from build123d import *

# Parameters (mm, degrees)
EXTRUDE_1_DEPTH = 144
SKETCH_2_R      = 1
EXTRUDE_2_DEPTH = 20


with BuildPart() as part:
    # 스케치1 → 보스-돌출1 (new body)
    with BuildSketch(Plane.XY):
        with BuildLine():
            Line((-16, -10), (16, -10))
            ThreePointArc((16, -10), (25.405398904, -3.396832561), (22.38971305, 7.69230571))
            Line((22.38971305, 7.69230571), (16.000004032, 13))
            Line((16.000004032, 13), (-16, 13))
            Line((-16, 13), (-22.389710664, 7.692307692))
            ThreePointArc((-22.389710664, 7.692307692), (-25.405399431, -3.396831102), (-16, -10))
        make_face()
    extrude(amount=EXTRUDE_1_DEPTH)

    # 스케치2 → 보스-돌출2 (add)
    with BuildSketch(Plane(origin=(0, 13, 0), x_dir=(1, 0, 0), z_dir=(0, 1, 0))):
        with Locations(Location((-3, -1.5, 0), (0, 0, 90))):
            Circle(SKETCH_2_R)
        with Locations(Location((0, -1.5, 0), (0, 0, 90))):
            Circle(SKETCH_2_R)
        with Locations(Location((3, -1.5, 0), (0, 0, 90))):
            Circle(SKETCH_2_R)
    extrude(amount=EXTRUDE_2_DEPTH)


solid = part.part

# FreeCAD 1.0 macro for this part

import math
import FreeCAD as App
import Part
import Sketcher

V = App.Vector
Q = App.Units.Quantity

doc = App.newDocument("Part")
body = doc.addObject("PartDesign::Body", "Body")

sketch1 = body.newObject("Sketcher::SketchObject", "Sketch")
sketch1.AttachmentSupport = (doc.getObject("XY_Plane"), [""])
sketch1.MapMode = "FlatFace"
sketch1.addGeometry(Part.LineSegment(V(-16, -10, 0), V(16, -10, 0)), False)
sketch1.addGeometry(Part.ArcOfCircle(Part.Circle(V(16, 0, 0), V(0, 0, 1), 10), math.radians(-90), math.radians(50)), False)
sketch1.addGeometry(Part.LineSegment(V(22, 8, 0), V(16, 13, 0)), False)
sketch1.addGeometry(Part.LineSegment(V(16, 13, 0), V(-16, 13, 0)), False)
sketch1.addGeometry(Part.LineSegment(V(-16, 13, 0), V(-22, 8, 0)), False)
sketch1.addGeometry(Part.ArcOfCircle(Part.Circle(V(-16, 0, 0), V(0, 0, 1), 10), math.radians(130), math.radians(270)), False)
sketch1.addConstraint(Sketcher.Constraint("Tangent", 0, 2, 1, 1))
sketch1.addConstraint(Sketcher.Constraint("Tangent", 1, 2, 2, 1))
sketch1.addConstraint(Sketcher.Constraint("Coincident", 2, 2, 3, 1))
sketch1.addConstraint(Sketcher.Constraint("Coincident", 3, 2, 4, 1))
sketch1.addConstraint(Sketcher.Constraint("Tangent", 4, 2, 5, 1))
sketch1.addConstraint(Sketcher.Constraint("Tangent", 5, 2, 0, 1))
sketch1.addConstraint(Sketcher.Constraint("Horizontal", 0))
sketch1.addConstraint(Sketcher.Constraint("Horizontal", 3))
sketch1.addConstraint(Sketcher.Constraint("Equal", 1, 5))
sketch1.addConstraint(Sketcher.Constraint("Symmetric", 1, 3, 5, 3, -1, 1))
sketch1.addConstraint(Sketcher.Constraint("Horizontal", 1, 2, 4, 2))
sketch1.addConstraint(Sketcher.Constraint("Vertical", 5, 3, 3, 2))
sketch1.addConstraint(Sketcher.Constraint("Radius", 1, Q("10 mm")))
sketch1.addConstraint(Sketcher.Constraint("DistanceX", 0, 1, 0, 2, Q("32 mm")))
sketch1.addConstraint(Sketcher.Constraint("DistanceY", -1, 1, 2, 2, Q("13 mm")))
pad1 = body.newObject("PartDesign::Pad", "Pad")
pad1.Profile = sketch1
pad1.Length = 144

sketch2 = body.newObject("Sketcher::SketchObject", "Sketch001")
sketch2.AttachmentSupport = (doc.getObject("XZ_Plane"), [""])
sketch2.MapMode = "FlatFace"
sketch2.AttachmentOffset = App.Placement(V(0, 0, -13), App.Rotation())
sketch2.addGeometry(Part.Circle(V(-3, 1.5, 0), V(0, 0, 1), 1), False)
sketch2.addGeometry(Part.Circle(V(0, 1.5, 0), V(0, 0, 1), 1), False)
sketch2.addGeometry(Part.Circle(V(3, 1.5, 0), V(0, 0, 1), 1), False)
sketch2.addConstraint(Sketcher.Constraint("Equal", 0, 1))
sketch2.addConstraint(Sketcher.Constraint("Equal", 1, 2))
sketch2.addConstraint(Sketcher.Constraint("Symmetric", 0, 3, 2, 3, -2))
sketch2.addConstraint(Sketcher.Constraint("PointOnObject", 1, 3, -2))
sketch2.addConstraint(Sketcher.Constraint("Horizontal", 0, 3, 1, 3))
sketch2.addConstraint(Sketcher.Constraint("Diameter", 0, Q("2 mm")))
sketch2.addConstraint(Sketcher.Constraint("DistanceX", 0, 3, -1, 1, Q("3 mm")))
sketch2.addConstraint(Sketcher.Constraint("DistanceY", -1, 1, 0, 3, Q("1.5 mm")))
pad2 = body.newObject("PartDesign::Pad", "Pad001")
pad2.Profile = sketch2
pad2.Length = 20
pad2.Reversed = True

doc.recompute()
